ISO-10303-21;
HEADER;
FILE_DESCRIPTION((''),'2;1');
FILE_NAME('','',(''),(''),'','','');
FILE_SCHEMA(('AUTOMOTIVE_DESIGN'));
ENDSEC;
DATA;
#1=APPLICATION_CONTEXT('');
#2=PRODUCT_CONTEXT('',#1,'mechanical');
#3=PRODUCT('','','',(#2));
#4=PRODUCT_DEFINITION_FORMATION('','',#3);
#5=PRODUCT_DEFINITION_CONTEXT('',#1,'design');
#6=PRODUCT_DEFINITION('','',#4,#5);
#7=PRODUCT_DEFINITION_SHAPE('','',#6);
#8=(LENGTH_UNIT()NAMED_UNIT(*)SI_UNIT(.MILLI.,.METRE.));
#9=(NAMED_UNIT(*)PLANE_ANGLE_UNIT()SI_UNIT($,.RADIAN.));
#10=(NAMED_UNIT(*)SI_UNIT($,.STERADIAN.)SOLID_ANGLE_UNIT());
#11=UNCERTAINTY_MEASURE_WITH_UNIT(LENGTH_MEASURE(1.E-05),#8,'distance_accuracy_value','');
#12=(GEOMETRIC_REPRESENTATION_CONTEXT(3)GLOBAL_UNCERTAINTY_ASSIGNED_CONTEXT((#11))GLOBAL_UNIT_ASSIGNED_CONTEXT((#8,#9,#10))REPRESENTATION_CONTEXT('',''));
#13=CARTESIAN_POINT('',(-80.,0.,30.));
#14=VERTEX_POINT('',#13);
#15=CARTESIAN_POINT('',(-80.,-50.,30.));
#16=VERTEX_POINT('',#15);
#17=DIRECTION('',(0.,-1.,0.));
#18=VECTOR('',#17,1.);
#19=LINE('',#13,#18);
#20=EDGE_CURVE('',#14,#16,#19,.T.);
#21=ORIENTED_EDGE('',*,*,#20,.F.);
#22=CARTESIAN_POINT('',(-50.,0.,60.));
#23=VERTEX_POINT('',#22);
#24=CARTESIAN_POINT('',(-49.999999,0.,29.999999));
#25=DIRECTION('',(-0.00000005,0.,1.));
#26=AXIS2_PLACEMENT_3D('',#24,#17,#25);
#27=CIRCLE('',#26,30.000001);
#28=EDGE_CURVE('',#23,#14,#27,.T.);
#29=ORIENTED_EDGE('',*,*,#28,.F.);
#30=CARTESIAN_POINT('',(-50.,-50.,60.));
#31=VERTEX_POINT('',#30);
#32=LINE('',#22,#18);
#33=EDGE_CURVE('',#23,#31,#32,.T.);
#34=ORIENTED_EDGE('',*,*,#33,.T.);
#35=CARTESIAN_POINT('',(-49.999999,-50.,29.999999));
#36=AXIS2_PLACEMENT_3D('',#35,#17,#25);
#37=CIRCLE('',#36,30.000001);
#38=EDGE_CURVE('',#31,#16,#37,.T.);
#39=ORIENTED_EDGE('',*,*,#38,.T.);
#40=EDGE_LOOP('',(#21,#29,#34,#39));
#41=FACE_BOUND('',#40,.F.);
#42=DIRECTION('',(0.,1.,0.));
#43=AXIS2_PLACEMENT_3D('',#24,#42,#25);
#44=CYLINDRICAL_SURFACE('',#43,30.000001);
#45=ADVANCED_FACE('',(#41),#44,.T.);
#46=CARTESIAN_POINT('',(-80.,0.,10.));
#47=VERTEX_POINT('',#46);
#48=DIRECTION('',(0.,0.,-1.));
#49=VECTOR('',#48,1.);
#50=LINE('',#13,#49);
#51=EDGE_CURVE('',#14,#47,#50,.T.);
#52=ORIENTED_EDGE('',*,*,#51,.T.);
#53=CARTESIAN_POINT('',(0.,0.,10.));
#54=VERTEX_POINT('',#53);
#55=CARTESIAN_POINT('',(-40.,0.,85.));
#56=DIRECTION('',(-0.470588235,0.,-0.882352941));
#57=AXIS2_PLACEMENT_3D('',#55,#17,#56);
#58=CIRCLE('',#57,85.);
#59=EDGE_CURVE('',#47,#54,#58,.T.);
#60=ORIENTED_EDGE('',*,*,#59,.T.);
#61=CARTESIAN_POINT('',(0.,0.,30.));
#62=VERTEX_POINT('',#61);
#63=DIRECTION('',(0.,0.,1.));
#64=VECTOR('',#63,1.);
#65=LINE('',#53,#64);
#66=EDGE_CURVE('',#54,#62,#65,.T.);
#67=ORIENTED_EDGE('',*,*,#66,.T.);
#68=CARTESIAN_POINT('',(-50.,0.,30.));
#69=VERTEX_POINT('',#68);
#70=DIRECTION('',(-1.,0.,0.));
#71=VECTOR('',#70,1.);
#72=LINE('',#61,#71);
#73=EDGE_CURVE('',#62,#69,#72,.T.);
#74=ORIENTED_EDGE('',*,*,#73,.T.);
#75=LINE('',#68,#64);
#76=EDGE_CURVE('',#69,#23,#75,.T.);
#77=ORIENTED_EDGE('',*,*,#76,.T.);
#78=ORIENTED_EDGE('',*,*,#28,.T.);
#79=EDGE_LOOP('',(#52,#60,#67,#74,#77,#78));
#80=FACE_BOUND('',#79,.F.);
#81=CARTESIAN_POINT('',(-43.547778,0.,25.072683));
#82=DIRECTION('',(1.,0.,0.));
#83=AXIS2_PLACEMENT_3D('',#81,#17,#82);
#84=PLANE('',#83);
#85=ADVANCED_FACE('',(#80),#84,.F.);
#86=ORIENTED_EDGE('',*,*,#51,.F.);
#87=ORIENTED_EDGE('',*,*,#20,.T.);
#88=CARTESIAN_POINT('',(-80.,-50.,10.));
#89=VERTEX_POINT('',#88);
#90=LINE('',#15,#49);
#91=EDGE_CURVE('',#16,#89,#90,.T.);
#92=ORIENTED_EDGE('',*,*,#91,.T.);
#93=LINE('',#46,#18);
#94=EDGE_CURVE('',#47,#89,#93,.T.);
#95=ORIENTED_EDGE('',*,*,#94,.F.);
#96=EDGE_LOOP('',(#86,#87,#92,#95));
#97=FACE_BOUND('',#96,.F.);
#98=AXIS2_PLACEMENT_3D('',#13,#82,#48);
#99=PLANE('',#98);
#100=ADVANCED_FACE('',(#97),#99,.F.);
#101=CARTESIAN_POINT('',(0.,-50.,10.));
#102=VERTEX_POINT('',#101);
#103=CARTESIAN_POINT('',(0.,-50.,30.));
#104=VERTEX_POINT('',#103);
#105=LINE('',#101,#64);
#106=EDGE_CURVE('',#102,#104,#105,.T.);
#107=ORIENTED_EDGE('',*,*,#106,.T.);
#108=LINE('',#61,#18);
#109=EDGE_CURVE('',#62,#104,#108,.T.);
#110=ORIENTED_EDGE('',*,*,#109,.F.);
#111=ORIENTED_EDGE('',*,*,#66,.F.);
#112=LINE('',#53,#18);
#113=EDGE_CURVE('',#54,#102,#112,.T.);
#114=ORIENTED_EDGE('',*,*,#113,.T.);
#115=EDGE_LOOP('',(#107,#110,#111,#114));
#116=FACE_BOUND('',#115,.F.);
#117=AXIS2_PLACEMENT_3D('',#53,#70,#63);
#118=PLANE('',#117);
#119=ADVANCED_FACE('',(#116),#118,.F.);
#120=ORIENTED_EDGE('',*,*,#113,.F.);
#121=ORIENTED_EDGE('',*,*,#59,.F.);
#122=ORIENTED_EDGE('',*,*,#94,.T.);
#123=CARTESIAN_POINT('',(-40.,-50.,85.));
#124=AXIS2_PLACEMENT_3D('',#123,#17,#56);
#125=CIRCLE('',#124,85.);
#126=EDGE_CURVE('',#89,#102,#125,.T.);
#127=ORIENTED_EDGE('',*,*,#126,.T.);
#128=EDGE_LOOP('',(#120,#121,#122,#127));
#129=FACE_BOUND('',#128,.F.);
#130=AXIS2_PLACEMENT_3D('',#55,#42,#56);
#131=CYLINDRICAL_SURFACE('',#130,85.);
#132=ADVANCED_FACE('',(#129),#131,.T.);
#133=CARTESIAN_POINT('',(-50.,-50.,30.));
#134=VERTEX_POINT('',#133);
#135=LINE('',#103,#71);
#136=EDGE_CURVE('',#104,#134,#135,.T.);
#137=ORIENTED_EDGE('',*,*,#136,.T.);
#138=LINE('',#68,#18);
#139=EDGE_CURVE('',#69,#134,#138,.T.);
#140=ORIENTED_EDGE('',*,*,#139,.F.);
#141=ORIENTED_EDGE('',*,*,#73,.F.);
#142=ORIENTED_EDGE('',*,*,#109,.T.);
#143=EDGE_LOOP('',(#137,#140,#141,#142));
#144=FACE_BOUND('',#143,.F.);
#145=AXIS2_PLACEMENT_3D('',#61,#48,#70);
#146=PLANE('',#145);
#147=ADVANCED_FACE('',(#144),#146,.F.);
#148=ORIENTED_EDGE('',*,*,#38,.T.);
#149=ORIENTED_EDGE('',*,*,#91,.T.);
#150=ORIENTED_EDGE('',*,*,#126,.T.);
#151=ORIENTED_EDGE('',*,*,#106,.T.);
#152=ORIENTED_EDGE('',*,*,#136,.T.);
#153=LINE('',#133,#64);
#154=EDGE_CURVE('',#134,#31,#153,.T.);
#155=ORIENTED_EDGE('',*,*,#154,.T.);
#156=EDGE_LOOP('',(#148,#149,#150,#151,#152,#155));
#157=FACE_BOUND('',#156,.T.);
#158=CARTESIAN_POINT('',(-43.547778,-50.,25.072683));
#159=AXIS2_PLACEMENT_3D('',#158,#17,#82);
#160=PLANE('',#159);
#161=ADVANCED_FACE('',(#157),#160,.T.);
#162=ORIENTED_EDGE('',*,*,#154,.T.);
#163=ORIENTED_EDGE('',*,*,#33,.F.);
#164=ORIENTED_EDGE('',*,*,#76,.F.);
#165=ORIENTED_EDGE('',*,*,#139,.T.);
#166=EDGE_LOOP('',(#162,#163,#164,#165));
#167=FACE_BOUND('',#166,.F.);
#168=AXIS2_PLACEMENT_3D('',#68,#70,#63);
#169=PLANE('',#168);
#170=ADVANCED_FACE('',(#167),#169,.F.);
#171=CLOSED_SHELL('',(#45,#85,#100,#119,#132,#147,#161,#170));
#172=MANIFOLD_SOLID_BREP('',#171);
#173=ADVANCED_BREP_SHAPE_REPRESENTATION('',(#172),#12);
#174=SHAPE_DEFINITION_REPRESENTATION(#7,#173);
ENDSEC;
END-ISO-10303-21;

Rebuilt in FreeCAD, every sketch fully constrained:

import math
import FreeCAD as App
import Part
import Sketcher

V = App.Vector

doc = App.newDocument("Part")
params = doc.addObject("Spreadsheet::Sheet", "Params")
for row, (alias, value) in enumerate([
    ("sketch1_radius", "30.000001 mm"),
    ("sketch1_radius2", "85 mm"),
    ("sketch1_width", "50 mm"),
    ("sketch1_height", "20 mm"),
    ("pad1_length", "50 mm"),
], start=1):
    params.set(f"A{row}", alias)
    params.set(f"B{row}", "=" + value)
    params.setAlias(f"B{row}", alias)

body = doc.addObject("PartDesign::Body", "Body")

# Sketch on XZ plane
sketch1 = body.newObject("Sketcher::SketchObject", "Sketch")
sketch1.AttachmentSupport = (doc.getObject("XZ_Plane"), [""])
sketch1.MapMode = "FlatFace"
sketch1.addGeometry([
    Part.LineSegment(V(-50, 30, 0), V(-50, 60, 0)),  # 0
    Part.ArcOfCircle(Part.Circle(V(-49.999999, 29.999999, 0), V(0, 0, 1), 30.000001), math.radians(90.000003), math.radians(179.999997)),  # 1
    Part.LineSegment(V(-80, 30, 0), V(-80, 10, 0)),  # 2
    Part.ArcOfCircle(Part.Circle(V(-40, 85, 0), V(0, 0, 1), 85), math.radians(-118.072487), math.radians(-61.927513)),  # 3
    Part.LineSegment(V(0, 10, 0), V(0, 30, 0)),  # 4
    Part.LineSegment(V(0, 30, 0), V(-50, 30, 0)),  # 5
], False)
sketch1.addConstraint([
    Sketcher.Constraint("Coincident", 0, 2, 1, 1),
    Sketcher.Constraint("Tangent", 1, 2, 2, 1),
    Sketcher.Constraint("Coincident", 2, 2, 3, 1),
    Sketcher.Constraint("Coincident", 3, 2, 4, 1),
    Sketcher.Constraint("Coincident", 4, 2, 5, 1),
    Sketcher.Constraint("Coincident", 5, 2, 0, 1),
    Sketcher.Constraint("Vertical", 0),
    Sketcher.Constraint("Vertical", 2),
    Sketcher.Constraint("Vertical", 4),
    Sketcher.Constraint("Horizontal", 5),
    Sketcher.Constraint("Coincident", 5, 2, 1, 3),
    Sketcher.Constraint("PointOnObject", 3, 2, -2),
    Sketcher.Constraint("Horizontal", 2, 2, 3, 2),
    Sketcher.Constraint("Radius", 1, 30.000001),
    Sketcher.Constraint("Radius", 3, 85.0),
    Sketcher.Constraint("DistanceX", 5, 2, 5, 1, 50.0),
    Sketcher.Constraint("DistanceY", 2, 2, 2, 1, 20.0),
    Sketcher.Constraint("DistanceY", -1, 1, 1, 3, 29.999999),
])
sketch1.setExpression("Constraints[13]", "Params.sketch1_radius")
sketch1.setExpression("Constraints[14]", "Params.sketch1_radius2")
sketch1.setExpression("Constraints[15]", "Params.sketch1_width")
sketch1.setExpression("Constraints[16]", "Params.sketch1_height")
pad1 = body.newObject("PartDesign::Pad", "Pad")
pad1.Profile = sketch1
pad1.setExpression("Length", "Params.pad1_length")

doc.recompute()
